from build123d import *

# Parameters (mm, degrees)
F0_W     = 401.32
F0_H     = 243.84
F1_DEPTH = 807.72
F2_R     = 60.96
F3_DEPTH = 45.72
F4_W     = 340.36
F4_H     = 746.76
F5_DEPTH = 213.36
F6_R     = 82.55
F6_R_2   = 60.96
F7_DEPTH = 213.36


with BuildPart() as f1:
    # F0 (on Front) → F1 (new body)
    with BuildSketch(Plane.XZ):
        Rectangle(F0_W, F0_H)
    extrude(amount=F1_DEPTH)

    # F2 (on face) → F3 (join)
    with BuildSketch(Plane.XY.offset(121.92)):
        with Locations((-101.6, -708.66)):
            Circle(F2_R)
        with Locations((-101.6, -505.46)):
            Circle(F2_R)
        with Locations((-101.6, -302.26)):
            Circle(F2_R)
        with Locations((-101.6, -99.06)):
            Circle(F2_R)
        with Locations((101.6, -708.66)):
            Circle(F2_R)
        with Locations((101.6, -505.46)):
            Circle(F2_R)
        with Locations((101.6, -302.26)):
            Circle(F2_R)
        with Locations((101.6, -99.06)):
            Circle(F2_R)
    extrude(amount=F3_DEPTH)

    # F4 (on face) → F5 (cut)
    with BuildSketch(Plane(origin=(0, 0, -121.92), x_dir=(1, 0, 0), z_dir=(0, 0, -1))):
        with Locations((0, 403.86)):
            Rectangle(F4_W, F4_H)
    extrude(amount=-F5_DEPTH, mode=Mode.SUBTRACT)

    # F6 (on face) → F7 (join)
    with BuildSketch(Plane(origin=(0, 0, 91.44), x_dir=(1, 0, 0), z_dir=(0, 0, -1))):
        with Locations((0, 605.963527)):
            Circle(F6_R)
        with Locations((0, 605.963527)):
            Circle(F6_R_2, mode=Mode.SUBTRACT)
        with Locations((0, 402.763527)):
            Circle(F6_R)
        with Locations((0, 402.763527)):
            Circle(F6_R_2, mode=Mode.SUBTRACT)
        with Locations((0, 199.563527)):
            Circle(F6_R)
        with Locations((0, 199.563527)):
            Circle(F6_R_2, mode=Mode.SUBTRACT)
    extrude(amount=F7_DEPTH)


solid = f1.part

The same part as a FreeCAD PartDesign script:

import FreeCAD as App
import Part
import Sketcher

V = App.Vector
Q = App.Units.Quantity

doc = App.newDocument("Part")
params = doc.addObject("Spreadsheet::Sheet", "Params")
for row, (alias, value) in enumerate([
    ("sketch1_width", "15.8 in"),
    ("sketch1_height", "9.6 in"),
    ("pad1_length", "31.8 in"),
    ("sketch2_diameter", "4.8 in"),
    ("pad2_length", "1.8 in"),
    ("sketch3_width", "13.4 in"),
    ("sketch3_height", "29.4 in"),
    ("pocket1_length", "8.4 in"),
    ("sketch4_diameter", "6.5 in"),
    ("sketch4_diameter2", "4.8 in"),
    ("pad3_length", "8.4 in"),
], start=1):
    params.set(f"A{row}", alias)
    params.set(f"B{row}", "=" + value)
    params.setAlias(f"B{row}", alias)

body = doc.addObject("PartDesign::Body", "Body")

# Sketch on XZ plane
sketch1 = body.newObject("Sketcher::SketchObject", "Sketch")
sketch1.AttachmentSupport = (doc.getObject("XZ_Plane"), [""])
sketch1.MapMode = "FlatFace"
sketch1.addGeometry([
    Part.LineSegment(V(-201, 122, 0), V(-201, -122, 0)),
    Part.LineSegment(V(-201, -122, 0), V(201, -122, 0)),
    Part.LineSegment(V(201, -122, 0), V(201, 122, 0)),
    Part.LineSegment(V(201, 122, 0), V(-201, 122, 0)),
], False)
sketch1.addConstraint([
    Sketcher.Constraint("Coincident", 0, 2, 1, 1),
    Sketcher.Constraint("Coincident", 1, 2, 2, 1),
    Sketcher.Constraint("Coincident", 2, 2, 3, 1),
    Sketcher.Constraint("Coincident", 3, 2, 0, 1),
    Sketcher.Constraint("Vertical", 0),
    Sketcher.Constraint("Horizontal", 1),
    Sketcher.Constraint("Vertical", 2),
    Sketcher.Constraint("Horizontal", 3),
    Sketcher.Constraint("Symmetric", 0, 2, 2, 2, -1, 1),
    Sketcher.Constraint("DistanceX", 1, 1, 1, 2, Q("15.8 in")),
    Sketcher.Constraint("DistanceY", 0, 2, 0, 1, Q("9.6 in")),
])
sketch1.setExpression("Constraints[9]", "Params.sketch1_width")
sketch1.setExpression("Constraints[10]", "Params.sketch1_height")
pad1 = body.newObject("PartDesign::Pad", "Pad")
pad1.Profile = sketch1
pad1.setExpression("Length", "Params.pad1_length")

# Sketch on XY plane
sketch2 = body.newObject("Sketcher::SketchObject", "Sketch001")
sketch2.AttachmentSupport = (doc.getObject("XY_Plane"), [""])
sketch2.MapMode = "FlatFace"
sketch2.AttachmentOffset = App.Placement(V(0, 0, 4.8 * 25.4), App.Rotation())
sketch2.addGeometry([
    Part.Circle(V(-102, -709, 0), V(0, 0, 1), 61),  # 0
    Part.Circle(V(-102, -505, 0), V(0, 0, 1), 61),  # 1
    Part.Circle(V(-102, -302, 0), V(0, 0, 1), 61),  # 2
    Part.Circle(V(-102, -99, 0), V(0, 0, 1), 61),  # 3
    Part.Circle(V(102, -709, 0), V(0, 0, 1), 61),  # 4
    Part.Circle(V(102, -505, 0), V(0, 0, 1), 61),  # 5
    Part.Circle(V(102, -302, 0), V(0, 0, 1), 61),  # 6
    Part.Circle(V(102, -99, 0), V(0, 0, 1), 61),  # 7
], False)
sketch2.addConstraint([
    Sketcher.Constraint("Equal", 0, 1),
    Sketcher.Constraint("Equal", 1, 2),
    Sketcher.Constraint("Equal", 2, 3),
    Sketcher.Constraint("Equal", 3, 4),
    Sketcher.Constraint("Equal", 4, 5),
    Sketcher.Constraint("Equal", 5, 6),
    Sketcher.Constraint("Equal", 6, 7),
    Sketcher.Constraint("Symmetric", 0, 3, 4, 3, -2),
    Sketcher.Constraint("Symmetric", 1, 3, 5, 3, -2),
    Sketcher.Constraint("Symmetric", 2, 3, 6, 3, -2),
    Sketcher.Constraint("Symmetric", 3, 3, 7, 3, -2),
    Sketcher.Constraint("Vertical", 0, 3, 1, 3),
    Sketcher.Constraint("Vertical", 1, 3, 2, 3),
    Sketcher.Constraint("Vertical", 2, 3, 3, 3),
    Sketcher.Constraint("Diameter", 0, Q("4.8 in")),
    Sketcher.Constraint("DistanceX", 0, 3, -1, 1, Q("4 in")),
    Sketcher.Constraint("DistanceY", 0, 3, 1, 3, Q("8 in")),
    Sketcher.Constraint("DistanceY", 1, 3, 2, 3, Q("8 in")),
    Sketcher.Constraint("DistanceY", 2, 3, 3, 3, Q("8 in")),
    Sketcher.Constraint("DistanceY", 0, 3, -1, 1, Q("27.9 in")),
])
sketch2.setExpression("Constraints[14]", "Params.sketch2_diameter")
pad2 = body.newObject("PartDesign::Pad", "Pad001")
pad2.Profile = sketch2
pad2.setExpression("Length", "Params.pad2_length")

# Sketch on XY plane
sketch3 = body.newObject("Sketcher::SketchObject", "Sketch002")
sketch3.AttachmentSupport = (doc.getObject("XY_Plane"), [""])
sketch3.MapMode = "FlatFace"
sketch3.AttachmentOffset = App.Placement(V(0, 0, -4.8 * 25.4), App.Rotation())
sketch3.addGeometry([
    Part.LineSegment(V(-170, -777, 0), V(-170, -30, 0)),
    Part.LineSegment(V(-170, -30, 0), V(170, -30, 0)),
    Part.LineSegment(V(170, -30, 0), V(170, -777, 0)),
    Part.LineSegment(V(170, -777, 0), V(-170, -777, 0)),
], False)
sketch3.addConstraint([
    Sketcher.Constraint("Coincident", 0, 2, 1, 1),
    Sketcher.Constraint("Coincident", 1, 2, 2, 1),
    Sketcher.Constraint("Coincident", 2, 2, 3, 1),
    Sketcher.Constraint("Coincident", 3, 2, 0, 1),
    Sketcher.Constraint("Vertical", 0),
    Sketcher.Constraint("Horizontal", 1),
    Sketcher.Constraint("Vertical", 2),
    Sketcher.Constraint("Horizontal", 3),
    Sketcher.Constraint("DistanceX", 1, 1, 1, 2, Q("13.4 in")),
    Sketcher.Constraint("DistanceY", 0, 1, 0, 2, Q("29.4 in")),
    Sketcher.Constraint("DistanceX", 0, 2, -1, 1, Q("6.7 in")),
    Sketcher.Constraint("DistanceY", 0, 2, -1, 1, Q("1.2 in")),
])
sketch3.setExpression("Constraints[8]", "Params.sketch3_width")
sketch3.setExpression("Constraints[9]", "Params.sketch3_height")
pocket1 = body.newObject("PartDesign::Pocket", "Pocket")
pocket1.Profile = sketch3
pocket1.setExpression("Length", "Params.pocket1_length")
pocket1.Reversed = True

# Sketch on XY plane
sketch4 = body.newObject("Sketcher::SketchObject", "Sketch003")
sketch4.AttachmentSupport = (doc.getObject("XY_Plane"), [""])
sketch4.MapMode = "FlatFace"
sketch4.AttachmentOffset = App.Placement(V(0, 0, 3.6 * 25.4), App.Rotation())
sketch4.addGeometry([
    Part.Circle(V(0, -606, 0), V(0, 0, 1), 83),  # 0
    Part.Circle(V(0, -606, 0), V(0, 0, 1), 61),  # 1
    Part.Circle(V(0, -403, 0), V(0, 0, 1), 83),  # 2
    Part.Circle(V(0, -403, 0), V(0, 0, 1), 61),  # 3
    Part.Circle(V(0, -200, 0), V(0, 0, 1), 83),  # 4
    Part.Circle(V(0, -200, 0), V(0, 0, 1), 61),  # 5
], False)
sketch4.addConstraint([
    Sketcher.Constraint("Coincident", 1, 3, 0, 3),
    Sketcher.Constraint("Coincident", 3, 3, 2, 3),
    Sketcher.Constraint("Coincident", 5, 3, 4, 3),
    Sketcher.Constraint("Equal", 0, 2),
    Sketcher.Constraint("Equal", 1, 3),
    Sketcher.Constraint("Equal", 2, 4),
    Sketcher.Constraint("Equal", 3, 5),
    Sketcher.Constraint("PointOnObject", 0, 3, -2),
    Sketcher.Constraint("PointOnObject", 2, 3, -2),
    Sketcher.Constraint("PointOnObject", 4, 3, -2),
    Sketcher.Constraint("Diameter", 0, Q("6.5 in")),
    Sketcher.Constraint("Diameter", 1, Q("4.8 in")),
    Sketcher.Constraint("DistanceY", 0, 3, 2, 3, Q("8 in")),
    Sketcher.Constraint("DistanceY", 2, 3, 4, 3, Q("8 in")),
    Sketcher.Constraint("DistanceY", 0, 3, -1, 1, 605.963527),
])
sketch4.setExpression("Constraints[10]", "Params.sketch4_diameter")
sketch4.setExpression("Constraints[11]", "Params.sketch4_diameter2")
pad3 = body.newObject("PartDesign::Pad", "Pad002")
pad3.Profile = sketch4
pad3.setExpression("Length", "Params.pad3_length")
pad3.Reversed = True

doc.recompute()
